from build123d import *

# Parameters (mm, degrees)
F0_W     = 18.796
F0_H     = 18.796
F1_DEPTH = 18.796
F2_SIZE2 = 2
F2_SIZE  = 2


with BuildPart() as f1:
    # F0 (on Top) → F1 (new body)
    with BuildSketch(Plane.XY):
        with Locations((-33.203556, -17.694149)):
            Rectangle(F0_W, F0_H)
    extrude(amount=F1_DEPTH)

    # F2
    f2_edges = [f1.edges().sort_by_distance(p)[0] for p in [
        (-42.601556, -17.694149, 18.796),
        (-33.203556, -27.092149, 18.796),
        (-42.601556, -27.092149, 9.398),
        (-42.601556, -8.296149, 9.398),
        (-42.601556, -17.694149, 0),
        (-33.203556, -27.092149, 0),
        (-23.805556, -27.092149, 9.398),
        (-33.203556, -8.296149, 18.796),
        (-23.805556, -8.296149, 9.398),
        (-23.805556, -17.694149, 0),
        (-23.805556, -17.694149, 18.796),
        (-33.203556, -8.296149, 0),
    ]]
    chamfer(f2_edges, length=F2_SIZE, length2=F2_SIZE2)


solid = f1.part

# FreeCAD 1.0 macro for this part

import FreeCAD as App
import Part
import Sketcher

V = App.Vector
Q = App.Units.Quantity

doc = App.newDocument("Part")
body = doc.addObject("PartDesign::Body", "Body")

sketch1 = doc.addObject("Sketcher::SketchObject", "Sketch")
body.addObject(sketch1)
sketch1.AttachmentSupport = (doc.XY_Plane, [""])
sketch1.MapMode = "FlatFace"
sketch1.addGeometry([
    Part.LineSegment(V(-43, -8, 0), V(-43, -27, 0)),
    Part.LineSegment(V(-43, -27, 0), V(-24, -27, 0)),
    Part.LineSegment(V(-24, -27, 0), V(-24, -8, 0)),
    Part.LineSegment(V(-24, -8, 0), V(-43, -8, 0)),
], False)
sketch1.addConstraint([
    Sketcher.Constraint("Coincident", 0, 2, 1, 1),
    Sketcher.Constraint("Coincident", 1, 2, 2, 1),
    Sketcher.Constraint("Coincident", 2, 2, 3, 1),
    Sketcher.Constraint("Coincident", 3, 2, 0, 1),
    Sketcher.Constraint("Vertical", 0),
    Sketcher.Constraint("Horizontal", 1),
    Sketcher.Constraint("Vertical", 2),
    Sketcher.Constraint("Horizontal", 3),
    Sketcher.Constraint("Equal", 3, 0),
    Sketcher.Constraint("DistanceX", 1, 1, 1, 2, Q("18.796 mm")),
    Sketcher.Constraint("DistanceY", 0, 2, -1, 1, Q("27.092149 mm")),
    Sketcher.Constraint("DistanceX", 0, 2, -1, 1, Q("42.601556 mm")),
])
pad1 = doc.addObject("PartDesign::Pad", "Pad")
body.addObject(pad1)
pad1.Profile = sketch1
pad1.Length = 18.796
doc.recompute()

chamfer = doc.addObject("PartDesign::Chamfer", "Chamfer")
body.addObject(chamfer)
chamfer.Base = (pad1, ["Edge1"])
chamfer.UseAllEdges = True
chamfer.ChamferType = "Two distances"
chamfer.Size = 2
chamfer.Size2 = 2

doc.recompute()
